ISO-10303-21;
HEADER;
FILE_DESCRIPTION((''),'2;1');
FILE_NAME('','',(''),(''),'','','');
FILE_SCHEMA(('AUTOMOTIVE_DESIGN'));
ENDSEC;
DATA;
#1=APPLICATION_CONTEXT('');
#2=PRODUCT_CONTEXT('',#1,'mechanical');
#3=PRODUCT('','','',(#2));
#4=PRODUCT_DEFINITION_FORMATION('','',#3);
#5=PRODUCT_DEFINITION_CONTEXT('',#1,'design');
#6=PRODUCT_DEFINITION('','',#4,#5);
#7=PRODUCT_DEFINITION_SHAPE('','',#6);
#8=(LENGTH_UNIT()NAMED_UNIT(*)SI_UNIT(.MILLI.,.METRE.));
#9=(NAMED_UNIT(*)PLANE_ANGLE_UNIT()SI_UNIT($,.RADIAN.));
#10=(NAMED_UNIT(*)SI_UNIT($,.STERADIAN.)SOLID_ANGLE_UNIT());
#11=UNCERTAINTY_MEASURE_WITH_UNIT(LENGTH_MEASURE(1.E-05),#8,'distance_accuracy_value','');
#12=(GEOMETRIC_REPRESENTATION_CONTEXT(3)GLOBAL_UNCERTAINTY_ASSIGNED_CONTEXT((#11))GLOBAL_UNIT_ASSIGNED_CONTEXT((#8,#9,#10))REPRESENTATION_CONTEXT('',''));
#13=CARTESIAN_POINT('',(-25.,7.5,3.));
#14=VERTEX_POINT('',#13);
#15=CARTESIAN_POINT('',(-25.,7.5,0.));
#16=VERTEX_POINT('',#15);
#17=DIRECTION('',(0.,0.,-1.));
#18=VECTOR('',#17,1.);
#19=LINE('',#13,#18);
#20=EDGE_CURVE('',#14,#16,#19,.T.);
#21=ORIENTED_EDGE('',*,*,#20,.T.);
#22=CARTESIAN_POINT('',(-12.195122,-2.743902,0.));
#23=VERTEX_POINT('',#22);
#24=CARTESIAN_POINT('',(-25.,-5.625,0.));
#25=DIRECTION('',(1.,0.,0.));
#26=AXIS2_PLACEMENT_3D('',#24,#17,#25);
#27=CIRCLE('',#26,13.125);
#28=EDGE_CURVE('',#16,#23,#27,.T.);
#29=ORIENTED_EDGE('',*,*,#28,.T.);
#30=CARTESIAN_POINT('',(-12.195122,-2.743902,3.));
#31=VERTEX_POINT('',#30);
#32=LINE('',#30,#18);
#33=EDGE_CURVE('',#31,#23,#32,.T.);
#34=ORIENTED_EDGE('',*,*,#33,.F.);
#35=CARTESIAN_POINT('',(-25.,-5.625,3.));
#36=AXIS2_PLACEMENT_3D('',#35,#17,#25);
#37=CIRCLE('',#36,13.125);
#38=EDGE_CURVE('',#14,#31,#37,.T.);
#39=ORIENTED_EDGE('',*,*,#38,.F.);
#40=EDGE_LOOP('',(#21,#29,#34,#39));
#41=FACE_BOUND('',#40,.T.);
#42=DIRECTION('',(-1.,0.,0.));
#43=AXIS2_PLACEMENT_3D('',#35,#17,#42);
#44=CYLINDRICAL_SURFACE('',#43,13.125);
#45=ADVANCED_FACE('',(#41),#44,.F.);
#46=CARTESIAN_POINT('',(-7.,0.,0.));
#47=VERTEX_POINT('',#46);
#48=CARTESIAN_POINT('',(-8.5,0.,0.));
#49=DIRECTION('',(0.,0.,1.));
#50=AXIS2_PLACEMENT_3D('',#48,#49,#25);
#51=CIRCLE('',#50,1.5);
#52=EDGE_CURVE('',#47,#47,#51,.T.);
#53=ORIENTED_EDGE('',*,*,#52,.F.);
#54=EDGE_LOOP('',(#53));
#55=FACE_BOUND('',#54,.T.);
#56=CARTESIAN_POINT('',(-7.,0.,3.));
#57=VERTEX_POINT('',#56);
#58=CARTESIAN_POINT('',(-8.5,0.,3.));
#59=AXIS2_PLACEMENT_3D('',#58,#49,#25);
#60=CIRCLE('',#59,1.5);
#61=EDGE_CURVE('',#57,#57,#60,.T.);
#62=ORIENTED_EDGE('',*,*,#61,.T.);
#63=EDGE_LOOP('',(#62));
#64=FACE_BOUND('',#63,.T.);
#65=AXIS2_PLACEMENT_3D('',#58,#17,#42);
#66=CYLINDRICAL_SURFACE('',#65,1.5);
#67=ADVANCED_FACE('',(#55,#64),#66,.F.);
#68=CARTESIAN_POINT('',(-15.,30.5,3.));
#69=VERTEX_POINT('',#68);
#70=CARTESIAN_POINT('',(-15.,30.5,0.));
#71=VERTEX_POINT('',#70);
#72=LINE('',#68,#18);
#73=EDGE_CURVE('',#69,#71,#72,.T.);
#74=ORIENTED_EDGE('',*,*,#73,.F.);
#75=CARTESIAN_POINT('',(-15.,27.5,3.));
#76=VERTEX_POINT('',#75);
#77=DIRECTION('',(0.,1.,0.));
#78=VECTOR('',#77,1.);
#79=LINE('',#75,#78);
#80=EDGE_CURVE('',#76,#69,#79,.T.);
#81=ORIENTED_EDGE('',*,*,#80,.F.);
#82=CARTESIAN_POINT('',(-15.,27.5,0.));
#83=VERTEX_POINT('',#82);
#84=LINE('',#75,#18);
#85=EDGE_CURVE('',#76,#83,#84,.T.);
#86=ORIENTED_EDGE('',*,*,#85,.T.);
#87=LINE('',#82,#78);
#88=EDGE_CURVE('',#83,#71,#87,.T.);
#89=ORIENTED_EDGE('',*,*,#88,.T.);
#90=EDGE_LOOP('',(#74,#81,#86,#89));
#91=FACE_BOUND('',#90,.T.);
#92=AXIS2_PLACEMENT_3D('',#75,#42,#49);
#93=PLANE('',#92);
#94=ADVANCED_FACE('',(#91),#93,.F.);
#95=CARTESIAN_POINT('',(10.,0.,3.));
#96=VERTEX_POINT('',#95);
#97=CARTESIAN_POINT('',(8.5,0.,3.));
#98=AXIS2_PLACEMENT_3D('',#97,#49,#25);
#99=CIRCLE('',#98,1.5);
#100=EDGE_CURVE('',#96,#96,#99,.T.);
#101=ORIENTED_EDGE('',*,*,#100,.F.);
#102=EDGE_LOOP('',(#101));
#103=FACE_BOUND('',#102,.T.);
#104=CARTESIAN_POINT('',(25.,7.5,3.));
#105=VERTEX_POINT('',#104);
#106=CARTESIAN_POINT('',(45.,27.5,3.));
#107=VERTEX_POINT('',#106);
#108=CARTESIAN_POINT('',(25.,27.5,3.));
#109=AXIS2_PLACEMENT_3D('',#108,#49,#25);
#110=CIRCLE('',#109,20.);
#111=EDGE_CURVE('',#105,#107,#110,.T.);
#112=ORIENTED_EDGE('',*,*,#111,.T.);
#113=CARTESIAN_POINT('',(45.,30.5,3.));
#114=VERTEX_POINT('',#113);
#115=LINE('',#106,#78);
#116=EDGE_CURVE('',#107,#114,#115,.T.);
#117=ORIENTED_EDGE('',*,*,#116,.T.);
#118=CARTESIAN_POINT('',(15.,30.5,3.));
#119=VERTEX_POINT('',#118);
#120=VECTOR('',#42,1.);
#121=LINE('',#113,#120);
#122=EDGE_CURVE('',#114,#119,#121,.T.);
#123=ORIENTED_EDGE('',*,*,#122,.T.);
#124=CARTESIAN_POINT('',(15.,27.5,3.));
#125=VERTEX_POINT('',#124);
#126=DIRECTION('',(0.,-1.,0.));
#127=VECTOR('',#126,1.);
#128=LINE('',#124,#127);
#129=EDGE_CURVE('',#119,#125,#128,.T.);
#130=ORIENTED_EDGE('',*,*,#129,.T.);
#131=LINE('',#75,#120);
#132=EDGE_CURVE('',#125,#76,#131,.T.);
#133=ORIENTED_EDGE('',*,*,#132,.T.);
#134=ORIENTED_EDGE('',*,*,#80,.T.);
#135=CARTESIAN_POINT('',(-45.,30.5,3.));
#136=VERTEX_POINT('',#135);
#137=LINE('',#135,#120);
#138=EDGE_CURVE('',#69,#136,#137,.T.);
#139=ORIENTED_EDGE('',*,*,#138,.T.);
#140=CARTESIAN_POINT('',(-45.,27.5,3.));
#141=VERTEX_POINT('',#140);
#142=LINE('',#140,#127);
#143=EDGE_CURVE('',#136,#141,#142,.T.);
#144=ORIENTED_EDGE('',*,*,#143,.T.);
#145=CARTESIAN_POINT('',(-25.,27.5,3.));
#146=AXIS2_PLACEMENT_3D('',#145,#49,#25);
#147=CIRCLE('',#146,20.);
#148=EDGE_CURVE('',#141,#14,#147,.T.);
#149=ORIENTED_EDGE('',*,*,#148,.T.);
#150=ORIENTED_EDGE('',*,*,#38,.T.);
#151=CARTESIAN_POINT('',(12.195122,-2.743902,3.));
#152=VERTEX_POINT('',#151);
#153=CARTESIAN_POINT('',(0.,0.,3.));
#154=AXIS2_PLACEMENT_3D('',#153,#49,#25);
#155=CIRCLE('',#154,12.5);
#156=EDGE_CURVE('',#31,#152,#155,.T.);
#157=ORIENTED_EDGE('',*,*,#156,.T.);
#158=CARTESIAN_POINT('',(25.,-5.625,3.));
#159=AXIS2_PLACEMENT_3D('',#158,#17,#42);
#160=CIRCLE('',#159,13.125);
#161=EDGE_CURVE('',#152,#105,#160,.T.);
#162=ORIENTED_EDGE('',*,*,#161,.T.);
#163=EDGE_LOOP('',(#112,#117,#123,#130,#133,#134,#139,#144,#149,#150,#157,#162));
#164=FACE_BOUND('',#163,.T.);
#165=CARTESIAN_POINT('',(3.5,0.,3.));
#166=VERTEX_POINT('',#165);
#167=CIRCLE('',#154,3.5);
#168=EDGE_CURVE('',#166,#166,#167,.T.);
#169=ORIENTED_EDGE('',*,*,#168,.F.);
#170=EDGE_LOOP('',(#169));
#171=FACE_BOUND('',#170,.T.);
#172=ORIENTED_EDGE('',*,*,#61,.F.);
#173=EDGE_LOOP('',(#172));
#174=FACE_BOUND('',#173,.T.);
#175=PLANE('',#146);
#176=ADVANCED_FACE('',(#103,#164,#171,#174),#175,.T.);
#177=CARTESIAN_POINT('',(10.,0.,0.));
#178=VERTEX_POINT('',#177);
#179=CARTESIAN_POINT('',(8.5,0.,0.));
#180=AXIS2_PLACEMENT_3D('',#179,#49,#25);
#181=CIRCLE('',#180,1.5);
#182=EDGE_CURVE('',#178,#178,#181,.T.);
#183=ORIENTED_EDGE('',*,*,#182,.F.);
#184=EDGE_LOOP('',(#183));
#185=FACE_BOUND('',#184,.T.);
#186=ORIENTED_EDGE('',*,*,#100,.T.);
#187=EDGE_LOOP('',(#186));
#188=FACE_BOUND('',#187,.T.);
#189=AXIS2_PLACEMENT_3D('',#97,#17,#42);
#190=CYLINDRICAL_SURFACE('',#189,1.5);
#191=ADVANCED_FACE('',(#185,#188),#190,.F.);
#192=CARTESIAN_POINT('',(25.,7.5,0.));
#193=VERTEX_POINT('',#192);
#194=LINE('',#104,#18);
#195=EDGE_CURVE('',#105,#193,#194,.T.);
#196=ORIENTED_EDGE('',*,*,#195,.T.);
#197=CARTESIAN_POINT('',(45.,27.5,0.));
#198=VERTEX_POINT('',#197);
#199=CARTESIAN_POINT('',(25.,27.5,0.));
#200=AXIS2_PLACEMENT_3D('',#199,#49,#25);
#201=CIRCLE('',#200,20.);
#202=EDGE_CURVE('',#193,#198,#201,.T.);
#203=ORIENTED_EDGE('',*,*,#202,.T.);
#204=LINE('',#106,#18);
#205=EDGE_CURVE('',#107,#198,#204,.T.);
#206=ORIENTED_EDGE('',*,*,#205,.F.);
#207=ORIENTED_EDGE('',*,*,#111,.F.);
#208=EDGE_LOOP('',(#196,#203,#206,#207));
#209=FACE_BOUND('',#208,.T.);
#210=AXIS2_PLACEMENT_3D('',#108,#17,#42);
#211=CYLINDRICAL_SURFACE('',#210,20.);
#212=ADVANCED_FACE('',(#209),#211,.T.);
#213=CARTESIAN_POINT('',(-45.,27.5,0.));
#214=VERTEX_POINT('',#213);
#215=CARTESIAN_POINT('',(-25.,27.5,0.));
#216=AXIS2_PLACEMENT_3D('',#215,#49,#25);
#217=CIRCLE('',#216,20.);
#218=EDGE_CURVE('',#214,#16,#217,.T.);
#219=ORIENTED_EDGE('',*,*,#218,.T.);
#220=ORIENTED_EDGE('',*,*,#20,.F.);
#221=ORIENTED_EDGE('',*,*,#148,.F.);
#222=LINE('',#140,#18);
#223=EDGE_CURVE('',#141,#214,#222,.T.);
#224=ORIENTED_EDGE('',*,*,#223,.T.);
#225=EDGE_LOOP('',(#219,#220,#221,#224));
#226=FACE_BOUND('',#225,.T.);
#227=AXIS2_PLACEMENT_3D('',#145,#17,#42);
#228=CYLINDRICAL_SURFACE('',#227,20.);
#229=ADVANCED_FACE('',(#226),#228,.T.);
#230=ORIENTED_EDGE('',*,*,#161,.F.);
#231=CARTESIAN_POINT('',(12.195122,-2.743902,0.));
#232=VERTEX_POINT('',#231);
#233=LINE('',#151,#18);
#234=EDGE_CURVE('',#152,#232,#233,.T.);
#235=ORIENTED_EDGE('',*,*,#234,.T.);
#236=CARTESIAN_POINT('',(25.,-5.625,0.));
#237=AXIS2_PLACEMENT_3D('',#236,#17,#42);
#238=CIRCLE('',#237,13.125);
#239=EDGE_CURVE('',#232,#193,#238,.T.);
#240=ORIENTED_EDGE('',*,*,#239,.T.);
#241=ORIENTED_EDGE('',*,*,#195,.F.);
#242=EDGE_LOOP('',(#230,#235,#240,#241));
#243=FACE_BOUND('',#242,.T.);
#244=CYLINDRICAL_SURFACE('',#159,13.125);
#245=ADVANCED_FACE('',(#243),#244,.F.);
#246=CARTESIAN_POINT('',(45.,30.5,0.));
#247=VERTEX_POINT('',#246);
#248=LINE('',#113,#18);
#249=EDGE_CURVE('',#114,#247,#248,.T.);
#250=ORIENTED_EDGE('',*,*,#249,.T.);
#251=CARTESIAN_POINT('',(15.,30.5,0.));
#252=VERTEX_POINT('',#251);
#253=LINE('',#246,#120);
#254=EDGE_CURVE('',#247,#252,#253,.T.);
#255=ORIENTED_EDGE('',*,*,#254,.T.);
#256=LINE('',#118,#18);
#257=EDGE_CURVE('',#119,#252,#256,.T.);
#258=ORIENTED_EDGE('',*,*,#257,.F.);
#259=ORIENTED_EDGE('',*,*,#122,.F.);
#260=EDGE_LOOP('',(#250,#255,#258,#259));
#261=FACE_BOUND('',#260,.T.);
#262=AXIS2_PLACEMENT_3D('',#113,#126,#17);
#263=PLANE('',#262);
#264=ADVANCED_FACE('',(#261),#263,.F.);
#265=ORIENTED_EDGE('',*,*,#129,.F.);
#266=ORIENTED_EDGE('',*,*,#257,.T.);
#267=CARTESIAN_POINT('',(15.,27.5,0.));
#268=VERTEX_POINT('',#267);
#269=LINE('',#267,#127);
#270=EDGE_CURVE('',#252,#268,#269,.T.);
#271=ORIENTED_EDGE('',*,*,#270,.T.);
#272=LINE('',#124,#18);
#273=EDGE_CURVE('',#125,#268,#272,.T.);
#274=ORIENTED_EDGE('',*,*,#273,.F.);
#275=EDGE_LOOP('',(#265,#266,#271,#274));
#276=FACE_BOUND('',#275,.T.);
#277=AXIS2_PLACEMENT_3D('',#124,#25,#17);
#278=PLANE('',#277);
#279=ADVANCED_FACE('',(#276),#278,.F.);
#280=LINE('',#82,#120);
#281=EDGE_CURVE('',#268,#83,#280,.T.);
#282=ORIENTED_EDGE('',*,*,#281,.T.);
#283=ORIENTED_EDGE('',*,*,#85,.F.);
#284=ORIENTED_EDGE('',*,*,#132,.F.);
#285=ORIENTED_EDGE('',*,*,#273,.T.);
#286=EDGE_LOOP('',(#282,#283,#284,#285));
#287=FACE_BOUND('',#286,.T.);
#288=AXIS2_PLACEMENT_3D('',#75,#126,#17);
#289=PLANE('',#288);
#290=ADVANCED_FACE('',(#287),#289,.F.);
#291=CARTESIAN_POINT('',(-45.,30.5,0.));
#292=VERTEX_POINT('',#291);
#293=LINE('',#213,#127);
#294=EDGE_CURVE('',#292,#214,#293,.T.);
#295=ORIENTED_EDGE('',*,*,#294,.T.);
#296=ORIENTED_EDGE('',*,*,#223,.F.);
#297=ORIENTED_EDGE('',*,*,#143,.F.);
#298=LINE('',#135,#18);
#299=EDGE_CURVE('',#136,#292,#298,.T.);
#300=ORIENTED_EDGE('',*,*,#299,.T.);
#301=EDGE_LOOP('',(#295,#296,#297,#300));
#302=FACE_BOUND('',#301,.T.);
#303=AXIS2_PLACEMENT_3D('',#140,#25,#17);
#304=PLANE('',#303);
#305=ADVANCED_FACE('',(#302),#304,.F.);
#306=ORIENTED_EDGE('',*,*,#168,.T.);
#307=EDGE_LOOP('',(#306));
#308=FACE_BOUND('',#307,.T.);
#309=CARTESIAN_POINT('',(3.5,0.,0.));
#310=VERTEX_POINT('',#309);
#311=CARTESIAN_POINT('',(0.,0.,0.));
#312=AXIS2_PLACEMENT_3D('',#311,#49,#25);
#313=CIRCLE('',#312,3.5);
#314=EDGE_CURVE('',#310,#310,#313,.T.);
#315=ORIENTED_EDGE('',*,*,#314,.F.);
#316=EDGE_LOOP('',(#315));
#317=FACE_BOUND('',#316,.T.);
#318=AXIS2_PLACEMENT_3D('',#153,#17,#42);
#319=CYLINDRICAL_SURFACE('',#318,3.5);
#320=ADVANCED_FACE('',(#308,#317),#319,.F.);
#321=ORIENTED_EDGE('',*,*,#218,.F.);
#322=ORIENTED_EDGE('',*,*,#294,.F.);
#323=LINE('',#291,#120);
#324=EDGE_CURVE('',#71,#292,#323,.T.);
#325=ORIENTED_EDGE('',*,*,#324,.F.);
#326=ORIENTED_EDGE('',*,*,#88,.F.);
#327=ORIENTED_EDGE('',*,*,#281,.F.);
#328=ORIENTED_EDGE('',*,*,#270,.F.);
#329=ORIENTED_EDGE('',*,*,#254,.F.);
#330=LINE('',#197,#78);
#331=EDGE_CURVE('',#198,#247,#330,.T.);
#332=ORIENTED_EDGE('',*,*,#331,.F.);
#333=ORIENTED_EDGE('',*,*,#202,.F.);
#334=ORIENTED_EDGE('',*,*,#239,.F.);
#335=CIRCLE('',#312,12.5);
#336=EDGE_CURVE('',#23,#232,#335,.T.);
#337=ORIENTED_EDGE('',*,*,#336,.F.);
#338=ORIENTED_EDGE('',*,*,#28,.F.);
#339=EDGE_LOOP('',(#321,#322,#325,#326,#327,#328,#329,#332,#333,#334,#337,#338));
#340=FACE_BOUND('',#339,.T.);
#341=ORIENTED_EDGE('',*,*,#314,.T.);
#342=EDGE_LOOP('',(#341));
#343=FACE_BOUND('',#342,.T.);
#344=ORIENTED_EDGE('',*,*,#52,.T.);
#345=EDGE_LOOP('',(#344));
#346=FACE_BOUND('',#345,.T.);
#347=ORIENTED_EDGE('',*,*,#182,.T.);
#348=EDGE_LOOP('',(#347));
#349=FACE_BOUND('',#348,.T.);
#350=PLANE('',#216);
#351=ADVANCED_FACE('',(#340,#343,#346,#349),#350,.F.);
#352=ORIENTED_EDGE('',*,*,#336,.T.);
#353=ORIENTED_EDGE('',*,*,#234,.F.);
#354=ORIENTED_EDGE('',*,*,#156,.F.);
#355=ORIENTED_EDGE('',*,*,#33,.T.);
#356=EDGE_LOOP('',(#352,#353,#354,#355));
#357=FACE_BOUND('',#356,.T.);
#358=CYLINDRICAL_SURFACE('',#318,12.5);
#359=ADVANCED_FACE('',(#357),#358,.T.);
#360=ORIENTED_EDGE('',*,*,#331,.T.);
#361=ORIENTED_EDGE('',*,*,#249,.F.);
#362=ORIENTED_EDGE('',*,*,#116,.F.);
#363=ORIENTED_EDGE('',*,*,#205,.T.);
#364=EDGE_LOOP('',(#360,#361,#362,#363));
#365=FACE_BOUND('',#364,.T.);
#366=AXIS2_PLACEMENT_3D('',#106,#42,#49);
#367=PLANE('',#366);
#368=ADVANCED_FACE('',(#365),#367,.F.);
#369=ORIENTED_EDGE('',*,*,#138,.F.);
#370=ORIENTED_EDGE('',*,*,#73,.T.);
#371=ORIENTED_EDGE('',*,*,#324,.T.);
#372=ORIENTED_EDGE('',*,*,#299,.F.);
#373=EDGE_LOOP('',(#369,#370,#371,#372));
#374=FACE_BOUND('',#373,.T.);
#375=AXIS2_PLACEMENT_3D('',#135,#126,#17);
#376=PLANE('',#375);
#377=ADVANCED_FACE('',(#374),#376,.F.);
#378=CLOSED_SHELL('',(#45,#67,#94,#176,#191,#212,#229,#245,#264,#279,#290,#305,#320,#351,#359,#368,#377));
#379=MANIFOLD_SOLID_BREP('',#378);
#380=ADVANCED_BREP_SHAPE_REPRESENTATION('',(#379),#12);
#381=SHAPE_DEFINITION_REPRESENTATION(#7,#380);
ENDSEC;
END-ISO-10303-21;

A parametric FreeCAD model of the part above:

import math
import FreeCAD as App
import Part
import Sketcher

doc = App.newDocument("Part")
body = doc.addObject("PartDesign::Body", "Body")

sketch1 = doc.addObject("Sketcher::SketchObject", "Sketch")
body.addObject(sketch1)
sketch1.AttachmentSupport = (doc.XY_Plane, [""])
sketch1.MapMode = "FlatFace"
sketch1.addGeometry(Part.LineSegment(App.Vector(15, 27.5, 0), App.Vector(-15, 27.5, 0)), False)
sketch1.addGeometry(Part.LineSegment(App.Vector(-15, 27.5, 0), App.Vector(-15, 30.5, 0)), False)
sketch1.addGeometry(Part.LineSegment(App.Vector(-15, 30.5, 0), App.Vector(-45, 30.5, 0)), False)
sketch1.addGeometry(Part.LineSegment(App.Vector(-45, 30.5, 0), App.Vector(-45, 27.5, 0)), False)
sketch1.addGeometry(Part.ArcOfCircle(Part.Circle(App.Vector(-25, 27.5, 0), App.Vector(0, 0, 1), 20), math.radians(180), math.radians(270)), False)
sketch1.addGeometry(Part.ArcOfCircle(Part.Circle(App.Vector(-25, -5.6, 0), App.Vector(0, 0, 1), 13.1), math.radians(13), math.radians(90)), False)
sketch1.addGeometry(Part.ArcOfCircle(Part.Circle(App.Vector(0, 0, 0), App.Vector(0, 0, 1), 12.5), math.radians(-167), math.radians(-13)), False)
sketch1.addGeometry(Part.ArcOfCircle(Part.Circle(App.Vector(25, -5.6, 0), App.Vector(0, 0, 1), 13.1), math.radians(90), math.radians(167)), False)
sketch1.addGeometry(Part.ArcOfCircle(Part.Circle(App.Vector(25, 27.5, 0), App.Vector(0, 0, 1), 20), math.radians(-90), math.radians(0)), False)
sketch1.addGeometry(Part.LineSegment(App.Vector(45, 27.5, 0), App.Vector(45, 30.5, 0)), False)
sketch1.addGeometry(Part.LineSegment(App.Vector(45, 30.5, 0), App.Vector(15, 30.5, 0)), False)
sketch1.addGeometry(Part.LineSegment(App.Vector(15, 30.5, 0), App.Vector(15, 27.5, 0)), False)
sketch1.addGeometry(Part.Circle(App.Vector(8.5, 0, 0), App.Vector(0, 0, 1), 1.5), False)
sketch1.addGeometry(Part.Circle(App.Vector(0, 0, 0), App.Vector(0, 0, 1), 3.5), False)
sketch1.addGeometry(Part.Circle(App.Vector(-8.5, 0, 0), App.Vector(0, 0, 1), 1.5), False)
sketch1.addConstraint(Sketcher.Constraint("Coincident", 0, 2, 1, 1))
sketch1.addConstraint(Sketcher.Constraint("Coincident", 1, 2, 2, 1))
sketch1.addConstraint(Sketcher.Constraint("Coincident", 2, 2, 3, 1))
sketch1.addConstraint(Sketcher.Constraint("Tangent", 3, 2, 4, 1))
sketch1.addConstraint(Sketcher.Constraint("Tangent", 4, 2, 5, 2))
sketch1.addConstraint(Sketcher.Constraint("Tangent", 5, 1, 6, 1))
sketch1.addConstraint(Sketcher.Constraint("Tangent", 6, 2, 7, 2))
sketch1.addConstraint(Sketcher.Constraint("Tangent", 7, 1, 8, 1))
sketch1.addConstraint(Sketcher.Constraint("Tangent", 8, 2, 9, 1))
sketch1.addConstraint(Sketcher.Constraint("Coincident", 9, 2, 10, 1))
sketch1.addConstraint(Sketcher.Constraint("Coincident", 10, 2, 11, 1))
sketch1.addConstraint(Sketcher.Constraint("Coincident", 11, 2, 0, 1))
sketch1.addConstraint(Sketcher.Constraint("Horizontal", 0))
sketch1.addConstraint(Sketcher.Constraint("Vertical", 1))
sketch1.addConstraint(Sketcher.Constraint("Horizontal", 2))
sketch1.addConstraint(Sketcher.Constraint("Vertical", 3))
sketch1.addConstraint(Sketcher.Constraint("Vertical", 9))
sketch1.addConstraint(Sketcher.Constraint("Horizontal", 10))
sketch1.addConstraint(Sketcher.Constraint("Vertical", 11))
sketch1.addConstraint(Sketcher.Constraint("Coincident", 6, 3, -1, 1))
sketch1.addConstraint(Sketcher.Constraint("Coincident", 13, 3, -1, 1))
sketch1.addConstraint(Sketcher.Constraint("Equal", 5, 7))
sketch1.addConstraint(Sketcher.Constraint("Equal", 4, 8))
sketch1.addConstraint(Sketcher.Constraint("Equal", 12, 14))
sketch1.addConstraint(Sketcher.Constraint("Symmetric", 12, 3, 14, 3, -1, 1))
sketch1.addConstraint(Sketcher.Constraint("Symmetric", 4, 3, 8, 3, -2))
sketch1.addConstraint(Sketcher.Constraint("Symmetric", 1, 2, 10, 2, -2))
sketch1.addConstraint(Sketcher.Constraint("PointOnObject", 12, 3, -1))
sketch1.addConstraint(Sketcher.Constraint("Horizontal", 8, 3, 0, 2))
sketch1.addConstraint(Sketcher.Constraint("Vertical", 4, 3, 5, 3))
sketch1.addConstraint(Sketcher.Constraint("Equal", 0, 2))
sketch1.addConstraint(Sketcher.Constraint("Diameter", 12, 3.0))
sketch1.addConstraint(Sketcher.Constraint("Diameter", 13, 7.0))
sketch1.addConstraint(Sketcher.Constraint("Radius", 4, 20.0))
sketch1.addConstraint(Sketcher.Constraint("Radius", 6, 12.5))
sketch1.addConstraint(Sketcher.Constraint("DistanceX", 0, 2, 0, 1, 30.0))
sketch1.addConstraint(Sketcher.Constraint("DistanceY", 1, 1, 1, 2, 3.0))
sketch1.addConstraint(Sketcher.Constraint("Radius", 5, 13.125))
sketch1.addConstraint(Sketcher.Constraint("DistanceX", 14, 3, 12, 3, 17.0))
pad1 = doc.addObject("PartDesign::Pad", "Pad")
body.addObject(pad1)
pad1.Profile = sketch1
pad1.Length = 3

doc.recompute()
